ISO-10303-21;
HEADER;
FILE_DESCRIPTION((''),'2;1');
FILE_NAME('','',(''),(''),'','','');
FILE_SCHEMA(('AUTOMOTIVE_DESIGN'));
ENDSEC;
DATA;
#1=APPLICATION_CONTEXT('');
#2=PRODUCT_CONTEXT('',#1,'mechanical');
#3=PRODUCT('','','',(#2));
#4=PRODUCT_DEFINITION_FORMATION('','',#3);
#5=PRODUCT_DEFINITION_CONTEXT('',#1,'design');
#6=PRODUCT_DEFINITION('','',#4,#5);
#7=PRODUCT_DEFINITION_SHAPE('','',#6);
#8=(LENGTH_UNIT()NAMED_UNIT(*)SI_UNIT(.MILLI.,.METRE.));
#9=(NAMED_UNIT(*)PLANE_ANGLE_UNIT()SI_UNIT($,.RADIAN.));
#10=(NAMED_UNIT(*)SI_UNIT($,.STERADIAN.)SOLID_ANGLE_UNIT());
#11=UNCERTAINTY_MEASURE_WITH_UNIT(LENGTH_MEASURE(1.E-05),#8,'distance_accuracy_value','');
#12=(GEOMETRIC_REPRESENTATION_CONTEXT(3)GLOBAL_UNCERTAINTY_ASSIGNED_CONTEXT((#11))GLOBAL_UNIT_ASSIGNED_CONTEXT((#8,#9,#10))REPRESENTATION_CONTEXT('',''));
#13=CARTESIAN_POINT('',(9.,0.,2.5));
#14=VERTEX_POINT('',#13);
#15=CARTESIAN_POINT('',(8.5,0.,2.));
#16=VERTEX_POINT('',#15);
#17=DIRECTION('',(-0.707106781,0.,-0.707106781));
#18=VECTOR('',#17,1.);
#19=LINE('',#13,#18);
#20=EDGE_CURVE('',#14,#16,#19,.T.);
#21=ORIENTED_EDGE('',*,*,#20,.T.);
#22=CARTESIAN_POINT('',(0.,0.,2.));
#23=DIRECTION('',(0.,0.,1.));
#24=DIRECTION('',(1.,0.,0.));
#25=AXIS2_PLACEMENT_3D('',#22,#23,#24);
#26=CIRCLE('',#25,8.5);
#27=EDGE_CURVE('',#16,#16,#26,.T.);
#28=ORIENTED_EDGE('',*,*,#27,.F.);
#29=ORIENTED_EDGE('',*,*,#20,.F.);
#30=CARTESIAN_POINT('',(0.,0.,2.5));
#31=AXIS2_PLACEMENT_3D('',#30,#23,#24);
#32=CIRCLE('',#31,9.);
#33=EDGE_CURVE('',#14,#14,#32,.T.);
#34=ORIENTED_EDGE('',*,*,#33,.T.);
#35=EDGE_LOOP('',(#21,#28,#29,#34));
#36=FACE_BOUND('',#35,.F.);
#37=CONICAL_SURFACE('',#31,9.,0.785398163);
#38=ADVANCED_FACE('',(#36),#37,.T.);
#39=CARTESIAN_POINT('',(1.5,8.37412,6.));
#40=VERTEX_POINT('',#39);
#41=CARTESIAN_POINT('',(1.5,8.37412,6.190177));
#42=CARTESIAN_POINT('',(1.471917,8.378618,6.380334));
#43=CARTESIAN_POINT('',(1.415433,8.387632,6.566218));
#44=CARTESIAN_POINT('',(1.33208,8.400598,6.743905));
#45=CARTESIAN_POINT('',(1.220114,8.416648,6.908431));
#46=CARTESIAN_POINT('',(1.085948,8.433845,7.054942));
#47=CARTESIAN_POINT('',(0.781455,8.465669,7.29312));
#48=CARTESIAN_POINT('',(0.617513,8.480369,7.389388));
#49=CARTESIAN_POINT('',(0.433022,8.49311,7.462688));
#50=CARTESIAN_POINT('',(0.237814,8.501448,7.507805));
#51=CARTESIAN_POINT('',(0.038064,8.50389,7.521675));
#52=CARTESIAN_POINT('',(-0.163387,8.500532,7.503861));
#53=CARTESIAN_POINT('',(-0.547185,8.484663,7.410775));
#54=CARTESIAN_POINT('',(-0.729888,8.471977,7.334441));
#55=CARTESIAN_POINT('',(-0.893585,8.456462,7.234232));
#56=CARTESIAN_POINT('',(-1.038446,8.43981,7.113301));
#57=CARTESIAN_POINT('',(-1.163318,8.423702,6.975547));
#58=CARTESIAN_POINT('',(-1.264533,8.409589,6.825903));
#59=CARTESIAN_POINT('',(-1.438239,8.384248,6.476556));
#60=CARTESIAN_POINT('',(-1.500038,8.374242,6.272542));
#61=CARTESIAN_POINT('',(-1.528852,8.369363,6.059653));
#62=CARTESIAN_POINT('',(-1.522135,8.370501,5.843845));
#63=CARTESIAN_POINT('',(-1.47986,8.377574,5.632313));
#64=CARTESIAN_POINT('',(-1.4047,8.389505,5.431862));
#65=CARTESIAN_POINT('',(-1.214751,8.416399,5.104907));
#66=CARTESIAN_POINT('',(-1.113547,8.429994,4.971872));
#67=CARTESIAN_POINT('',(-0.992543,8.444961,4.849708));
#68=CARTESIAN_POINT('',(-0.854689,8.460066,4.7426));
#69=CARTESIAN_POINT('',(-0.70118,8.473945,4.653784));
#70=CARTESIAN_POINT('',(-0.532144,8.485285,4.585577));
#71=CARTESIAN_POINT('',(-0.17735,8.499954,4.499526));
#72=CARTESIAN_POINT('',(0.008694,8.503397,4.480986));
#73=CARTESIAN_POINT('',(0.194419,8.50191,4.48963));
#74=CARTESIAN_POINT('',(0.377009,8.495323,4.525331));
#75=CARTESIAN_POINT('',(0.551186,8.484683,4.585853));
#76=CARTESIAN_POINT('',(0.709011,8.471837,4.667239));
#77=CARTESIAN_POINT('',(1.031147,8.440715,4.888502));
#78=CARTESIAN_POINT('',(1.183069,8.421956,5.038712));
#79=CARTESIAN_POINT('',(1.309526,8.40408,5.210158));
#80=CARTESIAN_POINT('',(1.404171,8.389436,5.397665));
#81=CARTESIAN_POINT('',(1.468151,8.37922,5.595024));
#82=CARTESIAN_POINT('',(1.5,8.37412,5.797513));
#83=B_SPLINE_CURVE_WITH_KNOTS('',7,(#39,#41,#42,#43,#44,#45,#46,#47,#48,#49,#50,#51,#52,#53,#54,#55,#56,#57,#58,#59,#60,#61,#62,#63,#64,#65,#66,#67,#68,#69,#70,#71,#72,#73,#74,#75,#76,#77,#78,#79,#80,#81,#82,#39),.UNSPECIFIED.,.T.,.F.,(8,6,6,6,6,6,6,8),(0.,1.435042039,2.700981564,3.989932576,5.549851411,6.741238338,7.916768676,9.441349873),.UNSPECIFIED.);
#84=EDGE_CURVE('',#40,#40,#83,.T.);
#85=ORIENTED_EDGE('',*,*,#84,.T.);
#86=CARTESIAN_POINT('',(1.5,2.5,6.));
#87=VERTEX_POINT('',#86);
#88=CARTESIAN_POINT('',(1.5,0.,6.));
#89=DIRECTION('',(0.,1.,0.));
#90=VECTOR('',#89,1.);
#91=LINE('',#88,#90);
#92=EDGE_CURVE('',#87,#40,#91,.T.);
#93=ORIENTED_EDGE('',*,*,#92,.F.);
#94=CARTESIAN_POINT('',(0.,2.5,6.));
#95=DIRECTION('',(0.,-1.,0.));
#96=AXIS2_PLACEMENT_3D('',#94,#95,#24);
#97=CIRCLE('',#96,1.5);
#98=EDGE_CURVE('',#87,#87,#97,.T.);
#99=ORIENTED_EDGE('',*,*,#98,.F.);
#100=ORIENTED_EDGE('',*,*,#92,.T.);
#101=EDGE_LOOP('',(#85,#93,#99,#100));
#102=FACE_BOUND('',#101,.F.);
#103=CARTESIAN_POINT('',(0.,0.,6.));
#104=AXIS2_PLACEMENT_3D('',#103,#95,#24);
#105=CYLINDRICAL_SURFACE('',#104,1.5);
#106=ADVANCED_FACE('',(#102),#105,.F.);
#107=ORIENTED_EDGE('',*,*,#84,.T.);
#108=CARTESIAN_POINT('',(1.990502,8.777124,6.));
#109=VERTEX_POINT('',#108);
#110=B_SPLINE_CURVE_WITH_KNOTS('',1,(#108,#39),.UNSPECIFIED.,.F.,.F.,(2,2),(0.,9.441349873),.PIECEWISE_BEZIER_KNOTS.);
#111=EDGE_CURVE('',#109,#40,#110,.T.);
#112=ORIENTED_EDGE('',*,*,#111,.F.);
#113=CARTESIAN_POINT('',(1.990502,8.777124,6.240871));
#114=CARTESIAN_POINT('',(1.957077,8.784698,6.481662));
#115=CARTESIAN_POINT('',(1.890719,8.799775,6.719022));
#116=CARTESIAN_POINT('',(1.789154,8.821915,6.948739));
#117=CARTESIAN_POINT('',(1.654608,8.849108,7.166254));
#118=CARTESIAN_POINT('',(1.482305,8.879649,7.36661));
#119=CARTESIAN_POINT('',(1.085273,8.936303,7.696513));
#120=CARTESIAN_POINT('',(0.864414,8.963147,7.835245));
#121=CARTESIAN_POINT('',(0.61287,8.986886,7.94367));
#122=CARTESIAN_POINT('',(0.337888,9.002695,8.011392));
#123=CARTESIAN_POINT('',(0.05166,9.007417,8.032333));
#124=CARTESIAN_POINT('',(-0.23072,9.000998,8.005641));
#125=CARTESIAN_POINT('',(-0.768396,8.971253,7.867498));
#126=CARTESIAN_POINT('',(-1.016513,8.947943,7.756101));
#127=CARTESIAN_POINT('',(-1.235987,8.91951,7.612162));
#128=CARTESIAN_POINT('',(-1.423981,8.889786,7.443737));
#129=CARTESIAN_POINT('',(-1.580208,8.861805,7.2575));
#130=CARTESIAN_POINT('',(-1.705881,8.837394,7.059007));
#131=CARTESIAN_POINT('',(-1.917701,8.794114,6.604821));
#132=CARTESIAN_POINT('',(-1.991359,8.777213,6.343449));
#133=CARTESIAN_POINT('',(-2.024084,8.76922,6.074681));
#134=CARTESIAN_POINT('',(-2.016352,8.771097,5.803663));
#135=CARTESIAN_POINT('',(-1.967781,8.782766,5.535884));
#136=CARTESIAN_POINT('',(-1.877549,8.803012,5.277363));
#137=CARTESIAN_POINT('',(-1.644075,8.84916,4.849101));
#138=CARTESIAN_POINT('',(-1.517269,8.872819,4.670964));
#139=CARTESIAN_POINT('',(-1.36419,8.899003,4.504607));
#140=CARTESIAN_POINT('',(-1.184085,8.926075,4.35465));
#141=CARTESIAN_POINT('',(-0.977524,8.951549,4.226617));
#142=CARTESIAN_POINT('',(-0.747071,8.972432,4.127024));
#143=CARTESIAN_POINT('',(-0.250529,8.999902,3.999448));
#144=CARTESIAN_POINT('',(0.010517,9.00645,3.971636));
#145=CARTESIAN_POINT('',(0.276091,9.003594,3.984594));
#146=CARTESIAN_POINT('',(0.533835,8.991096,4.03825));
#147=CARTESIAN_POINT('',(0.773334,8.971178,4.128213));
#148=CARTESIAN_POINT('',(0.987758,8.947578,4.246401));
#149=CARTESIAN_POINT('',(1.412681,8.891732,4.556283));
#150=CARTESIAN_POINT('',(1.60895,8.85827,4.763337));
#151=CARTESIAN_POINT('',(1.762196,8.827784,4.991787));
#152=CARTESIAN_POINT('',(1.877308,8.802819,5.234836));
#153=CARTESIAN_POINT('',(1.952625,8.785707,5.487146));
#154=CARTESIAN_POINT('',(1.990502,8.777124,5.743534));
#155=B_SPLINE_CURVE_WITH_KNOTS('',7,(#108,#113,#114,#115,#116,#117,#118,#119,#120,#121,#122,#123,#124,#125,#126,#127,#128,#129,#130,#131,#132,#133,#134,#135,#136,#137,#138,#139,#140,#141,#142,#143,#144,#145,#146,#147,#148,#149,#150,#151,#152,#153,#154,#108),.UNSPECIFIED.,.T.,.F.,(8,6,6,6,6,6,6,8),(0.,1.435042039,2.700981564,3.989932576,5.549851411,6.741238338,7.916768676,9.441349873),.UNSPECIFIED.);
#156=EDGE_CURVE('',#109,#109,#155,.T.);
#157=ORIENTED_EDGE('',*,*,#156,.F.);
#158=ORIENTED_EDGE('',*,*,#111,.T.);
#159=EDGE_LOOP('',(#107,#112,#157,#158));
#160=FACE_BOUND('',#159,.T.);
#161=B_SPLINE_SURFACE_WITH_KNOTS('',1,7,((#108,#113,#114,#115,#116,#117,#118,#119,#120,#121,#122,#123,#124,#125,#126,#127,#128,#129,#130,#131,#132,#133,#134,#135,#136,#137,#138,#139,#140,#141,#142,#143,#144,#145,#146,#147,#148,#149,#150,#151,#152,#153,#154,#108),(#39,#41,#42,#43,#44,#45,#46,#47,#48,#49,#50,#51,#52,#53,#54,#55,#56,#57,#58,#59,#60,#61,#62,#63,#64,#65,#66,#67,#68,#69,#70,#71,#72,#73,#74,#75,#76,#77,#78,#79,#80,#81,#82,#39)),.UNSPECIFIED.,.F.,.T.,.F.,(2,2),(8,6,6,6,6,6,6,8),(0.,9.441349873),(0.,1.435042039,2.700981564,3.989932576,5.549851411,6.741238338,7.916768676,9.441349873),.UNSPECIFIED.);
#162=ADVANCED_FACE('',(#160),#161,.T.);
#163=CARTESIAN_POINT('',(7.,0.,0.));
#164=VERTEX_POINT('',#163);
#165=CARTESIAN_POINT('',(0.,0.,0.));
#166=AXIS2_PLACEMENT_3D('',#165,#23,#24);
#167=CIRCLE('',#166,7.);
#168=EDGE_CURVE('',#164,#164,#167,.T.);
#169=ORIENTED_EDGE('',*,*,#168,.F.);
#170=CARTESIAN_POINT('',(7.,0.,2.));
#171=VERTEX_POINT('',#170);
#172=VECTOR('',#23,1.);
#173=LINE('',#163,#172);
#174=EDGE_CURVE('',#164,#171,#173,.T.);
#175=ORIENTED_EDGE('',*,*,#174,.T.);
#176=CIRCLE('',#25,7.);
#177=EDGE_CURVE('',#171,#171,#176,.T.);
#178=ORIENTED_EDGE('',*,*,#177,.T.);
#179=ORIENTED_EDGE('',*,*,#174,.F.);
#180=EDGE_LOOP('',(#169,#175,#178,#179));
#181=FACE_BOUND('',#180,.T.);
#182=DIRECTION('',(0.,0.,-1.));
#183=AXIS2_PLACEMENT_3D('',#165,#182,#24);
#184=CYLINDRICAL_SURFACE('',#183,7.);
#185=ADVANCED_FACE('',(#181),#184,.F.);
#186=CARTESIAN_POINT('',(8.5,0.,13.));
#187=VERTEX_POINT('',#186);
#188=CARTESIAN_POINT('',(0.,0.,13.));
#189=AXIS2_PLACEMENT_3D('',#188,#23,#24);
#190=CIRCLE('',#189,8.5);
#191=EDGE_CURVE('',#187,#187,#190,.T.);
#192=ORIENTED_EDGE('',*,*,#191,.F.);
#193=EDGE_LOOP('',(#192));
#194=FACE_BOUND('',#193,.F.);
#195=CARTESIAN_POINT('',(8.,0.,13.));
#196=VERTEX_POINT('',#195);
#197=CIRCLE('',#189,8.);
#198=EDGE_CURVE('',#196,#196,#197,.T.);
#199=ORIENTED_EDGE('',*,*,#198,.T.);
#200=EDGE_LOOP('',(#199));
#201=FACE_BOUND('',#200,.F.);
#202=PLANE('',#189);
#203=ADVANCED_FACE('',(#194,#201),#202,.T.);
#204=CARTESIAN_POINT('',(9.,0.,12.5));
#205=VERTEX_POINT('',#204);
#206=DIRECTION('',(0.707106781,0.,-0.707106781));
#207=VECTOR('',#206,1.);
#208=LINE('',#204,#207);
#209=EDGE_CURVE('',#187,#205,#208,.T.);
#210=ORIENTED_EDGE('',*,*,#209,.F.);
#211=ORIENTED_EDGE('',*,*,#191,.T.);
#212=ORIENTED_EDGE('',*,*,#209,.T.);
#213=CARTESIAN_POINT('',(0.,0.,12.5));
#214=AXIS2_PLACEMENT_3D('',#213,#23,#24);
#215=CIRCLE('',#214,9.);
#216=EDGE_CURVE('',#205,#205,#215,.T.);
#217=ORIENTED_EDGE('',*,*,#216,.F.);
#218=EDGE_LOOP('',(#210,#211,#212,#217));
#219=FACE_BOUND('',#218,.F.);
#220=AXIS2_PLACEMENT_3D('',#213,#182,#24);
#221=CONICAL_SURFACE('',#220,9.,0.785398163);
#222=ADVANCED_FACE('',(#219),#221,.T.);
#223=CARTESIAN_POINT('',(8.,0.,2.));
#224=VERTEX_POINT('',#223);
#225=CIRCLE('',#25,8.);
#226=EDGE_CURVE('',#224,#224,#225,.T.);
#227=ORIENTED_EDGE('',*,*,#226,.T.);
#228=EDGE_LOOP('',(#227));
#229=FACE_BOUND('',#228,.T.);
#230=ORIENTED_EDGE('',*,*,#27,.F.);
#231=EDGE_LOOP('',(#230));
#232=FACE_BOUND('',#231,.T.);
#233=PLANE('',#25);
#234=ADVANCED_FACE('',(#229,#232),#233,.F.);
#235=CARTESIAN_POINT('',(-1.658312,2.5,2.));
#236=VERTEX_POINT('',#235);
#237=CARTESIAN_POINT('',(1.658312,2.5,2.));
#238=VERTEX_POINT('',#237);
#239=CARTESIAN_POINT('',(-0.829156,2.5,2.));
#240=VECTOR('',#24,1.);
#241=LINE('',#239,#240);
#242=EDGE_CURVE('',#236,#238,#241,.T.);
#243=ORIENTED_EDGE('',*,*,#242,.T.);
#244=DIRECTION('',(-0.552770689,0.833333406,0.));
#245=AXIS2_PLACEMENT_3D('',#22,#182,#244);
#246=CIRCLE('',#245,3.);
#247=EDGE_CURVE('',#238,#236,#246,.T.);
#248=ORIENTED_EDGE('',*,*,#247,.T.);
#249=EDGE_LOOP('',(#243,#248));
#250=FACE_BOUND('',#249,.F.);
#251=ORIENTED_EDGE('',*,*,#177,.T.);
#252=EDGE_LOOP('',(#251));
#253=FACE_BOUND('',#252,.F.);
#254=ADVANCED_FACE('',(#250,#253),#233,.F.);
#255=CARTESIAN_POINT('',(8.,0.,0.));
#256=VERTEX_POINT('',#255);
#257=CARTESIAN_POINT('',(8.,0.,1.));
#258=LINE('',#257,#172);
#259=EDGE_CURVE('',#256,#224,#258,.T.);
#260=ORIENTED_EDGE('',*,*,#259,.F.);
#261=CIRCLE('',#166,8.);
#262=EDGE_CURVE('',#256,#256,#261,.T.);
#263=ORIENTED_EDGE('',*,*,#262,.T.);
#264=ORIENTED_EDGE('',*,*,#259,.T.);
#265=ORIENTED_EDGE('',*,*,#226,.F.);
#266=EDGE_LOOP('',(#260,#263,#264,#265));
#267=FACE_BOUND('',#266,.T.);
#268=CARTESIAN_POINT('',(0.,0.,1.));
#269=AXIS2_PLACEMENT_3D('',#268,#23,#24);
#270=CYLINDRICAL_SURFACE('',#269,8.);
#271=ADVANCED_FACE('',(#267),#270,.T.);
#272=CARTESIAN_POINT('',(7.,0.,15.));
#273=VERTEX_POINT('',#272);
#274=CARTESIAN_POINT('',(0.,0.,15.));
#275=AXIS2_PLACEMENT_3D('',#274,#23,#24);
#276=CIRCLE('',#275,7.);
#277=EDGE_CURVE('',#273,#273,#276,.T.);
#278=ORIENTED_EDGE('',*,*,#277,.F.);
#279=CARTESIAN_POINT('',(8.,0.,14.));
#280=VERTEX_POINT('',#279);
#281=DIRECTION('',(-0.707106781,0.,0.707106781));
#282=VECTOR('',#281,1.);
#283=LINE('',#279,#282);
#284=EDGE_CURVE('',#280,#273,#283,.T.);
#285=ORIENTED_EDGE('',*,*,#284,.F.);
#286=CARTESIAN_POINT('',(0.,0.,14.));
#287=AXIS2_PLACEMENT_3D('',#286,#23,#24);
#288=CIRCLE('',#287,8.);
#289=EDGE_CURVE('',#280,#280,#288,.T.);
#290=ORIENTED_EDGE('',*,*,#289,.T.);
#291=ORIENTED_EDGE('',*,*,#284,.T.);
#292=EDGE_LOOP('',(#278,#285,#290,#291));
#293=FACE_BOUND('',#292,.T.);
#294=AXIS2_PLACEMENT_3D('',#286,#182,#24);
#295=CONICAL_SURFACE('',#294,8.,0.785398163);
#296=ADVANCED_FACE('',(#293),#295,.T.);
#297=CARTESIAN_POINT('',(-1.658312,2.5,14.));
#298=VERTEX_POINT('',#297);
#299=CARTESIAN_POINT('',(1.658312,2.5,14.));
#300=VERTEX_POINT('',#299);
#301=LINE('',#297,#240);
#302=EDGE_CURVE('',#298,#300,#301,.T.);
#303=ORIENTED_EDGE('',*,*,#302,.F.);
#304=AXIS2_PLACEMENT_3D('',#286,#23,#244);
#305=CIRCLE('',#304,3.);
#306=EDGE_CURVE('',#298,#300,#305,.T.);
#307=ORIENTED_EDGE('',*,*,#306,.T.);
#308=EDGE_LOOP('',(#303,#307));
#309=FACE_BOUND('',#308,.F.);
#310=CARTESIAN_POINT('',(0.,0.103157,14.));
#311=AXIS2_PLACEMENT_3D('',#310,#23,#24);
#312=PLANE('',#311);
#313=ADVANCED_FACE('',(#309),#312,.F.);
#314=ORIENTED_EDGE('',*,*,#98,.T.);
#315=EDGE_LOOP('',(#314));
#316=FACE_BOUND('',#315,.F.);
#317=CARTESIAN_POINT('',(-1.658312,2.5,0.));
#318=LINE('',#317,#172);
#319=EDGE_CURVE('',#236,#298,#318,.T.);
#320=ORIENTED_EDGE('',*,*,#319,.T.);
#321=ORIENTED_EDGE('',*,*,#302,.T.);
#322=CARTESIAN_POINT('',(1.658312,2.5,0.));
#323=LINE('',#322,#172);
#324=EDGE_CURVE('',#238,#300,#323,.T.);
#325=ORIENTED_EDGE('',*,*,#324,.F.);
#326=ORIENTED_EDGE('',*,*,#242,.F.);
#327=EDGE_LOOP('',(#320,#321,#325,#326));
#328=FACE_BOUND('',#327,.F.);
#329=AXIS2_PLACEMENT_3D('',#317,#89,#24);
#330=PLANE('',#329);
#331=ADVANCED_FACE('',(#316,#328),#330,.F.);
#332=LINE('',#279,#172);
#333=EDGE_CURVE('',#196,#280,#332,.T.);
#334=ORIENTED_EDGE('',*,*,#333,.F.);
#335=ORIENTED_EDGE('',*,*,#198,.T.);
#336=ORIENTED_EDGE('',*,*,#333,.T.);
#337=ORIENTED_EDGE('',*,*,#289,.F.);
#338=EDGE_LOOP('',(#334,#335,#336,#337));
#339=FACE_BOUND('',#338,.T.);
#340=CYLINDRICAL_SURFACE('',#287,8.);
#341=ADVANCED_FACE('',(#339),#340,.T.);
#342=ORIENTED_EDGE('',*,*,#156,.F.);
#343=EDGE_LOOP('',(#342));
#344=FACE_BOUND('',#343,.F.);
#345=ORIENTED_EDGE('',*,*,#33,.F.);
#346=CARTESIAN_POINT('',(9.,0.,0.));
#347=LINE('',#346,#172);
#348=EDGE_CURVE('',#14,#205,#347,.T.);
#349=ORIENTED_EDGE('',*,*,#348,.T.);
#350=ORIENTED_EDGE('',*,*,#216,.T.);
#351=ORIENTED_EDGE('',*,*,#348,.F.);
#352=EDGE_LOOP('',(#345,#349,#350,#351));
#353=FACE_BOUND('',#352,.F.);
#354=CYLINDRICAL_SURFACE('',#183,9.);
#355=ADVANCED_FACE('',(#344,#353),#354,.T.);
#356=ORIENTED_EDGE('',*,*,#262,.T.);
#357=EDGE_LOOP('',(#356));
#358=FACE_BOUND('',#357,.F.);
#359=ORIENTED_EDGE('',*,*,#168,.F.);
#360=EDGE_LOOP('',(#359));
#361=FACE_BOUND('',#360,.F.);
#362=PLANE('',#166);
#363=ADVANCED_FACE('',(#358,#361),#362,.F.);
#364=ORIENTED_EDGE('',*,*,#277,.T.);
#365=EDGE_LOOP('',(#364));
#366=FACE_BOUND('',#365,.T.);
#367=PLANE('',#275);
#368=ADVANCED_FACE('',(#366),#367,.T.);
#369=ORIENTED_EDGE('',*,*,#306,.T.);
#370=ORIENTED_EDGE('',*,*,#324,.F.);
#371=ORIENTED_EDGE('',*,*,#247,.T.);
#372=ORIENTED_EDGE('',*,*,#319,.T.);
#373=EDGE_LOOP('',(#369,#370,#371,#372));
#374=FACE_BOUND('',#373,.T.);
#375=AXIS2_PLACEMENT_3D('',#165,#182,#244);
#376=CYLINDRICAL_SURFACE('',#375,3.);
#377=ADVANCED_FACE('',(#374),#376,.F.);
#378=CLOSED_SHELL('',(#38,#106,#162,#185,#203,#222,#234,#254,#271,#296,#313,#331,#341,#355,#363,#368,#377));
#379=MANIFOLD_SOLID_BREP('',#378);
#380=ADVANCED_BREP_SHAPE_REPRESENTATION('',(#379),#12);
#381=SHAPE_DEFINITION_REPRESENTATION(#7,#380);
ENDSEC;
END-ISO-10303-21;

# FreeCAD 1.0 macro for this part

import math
import FreeCAD as App
import Part
import Sketcher

V = App.Vector
Q = App.Units.Quantity


def edges_at(feature, points):
    """Names of the edges that pass closest to the given points."""
    edges = feature.Shape.Edges
    near = lambda p: min(range(len(edges)), key=lambda i: edges[i].distToShape(Part.Vertex(*p))[0])
    return sorted({f"Edge{near(p) + 1}" for p in points})


def add_polygon(sketch, points):
    """Adds a closed chain of lines whose ends are joined by coincident constraints."""
    first, n = sketch.GeometryCount, len(points)
    for a, b in zip(points, points[1:] + points[:1]):
        sketch.addGeometry(Part.LineSegment(App.Vector(*a, 0), App.Vector(*b, 0)), False)
    for i in range(n):
        sketch.addConstraint(Sketcher.Constraint("Coincident", first + i, 2, first + (i + 1) % n, 1))

doc = App.newDocument("Part")
params = doc.addObject("Spreadsheet::Sheet", "Params")
for row, (alias, value) in enumerate([
    ("sketch1_diameter", "18 mm"),
    ("pad1_length", "15 mm"),
    ("sketch2_radius", "3 mm"),
    ("pocket1_length", "14 mm"),
    ("sketch3_diameter", "14 mm"),
    ("pocket2_length", "2 mm"),
    ("sketch4_diameter", "3 mm"),
    ("sketch5_width", "1 mm"),
    ("sketch5_height", "2 mm"),
    ("groove_angle", "360 deg"),
    ("chamfer_size", "1 mm"),
    ("chamfer2_size", "0.5 mm"),
], start=1):
    params.set(f"A{row}", alias)
    params.set(f"B{row}", "=" + value)
    params.setAlias(f"B{row}", alias)

body = doc.addObject("PartDesign::Body", "Body")

# Sketch on XY plane
sketch1 = doc.addObject("Sketcher::SketchObject", "Sketch")
body.addObject(sketch1)
sketch1.AttachmentSupport = (doc.XY_Plane, [""])
sketch1.MapMode = "FlatFace"
sketch1.addGeometry(Part.Circle(V(0, 0, 0), V(0, 0, 1), 9), False)
sketch1.addConstraint([
    Sketcher.Constraint("Coincident", 0, 3, -1, 1),
    Sketcher.Constraint("Diameter", 0, Q("18 mm")),
])
sketch1.setExpression("Constraints[1]", "Params.sketch1_diameter")
pad1 = doc.addObject("PartDesign::Pad", "Pad")
body.addObject(pad1)
pad1.Profile = sketch1
pad1.setExpression("Length", "Params.pad1_length")

# Sketch on XY plane
sketch2 = doc.addObject("Sketcher::SketchObject", "Sketch001")
body.addObject(sketch2)
sketch2.AttachmentSupport = (doc.XY_Plane, [""])
sketch2.MapMode = "FlatFace"
sketch2.addGeometry([
    Part.ArcOfCircle(Part.Circle(V(0, 0, 0), V(0, 0, 1), 3), math.radians(124), math.radians(416)),
    Part.LineSegment(V(1.7, 2.5, 0), V(-1.7, 2.5, 0)),
], False)
sketch2.addConstraint([
    Sketcher.Constraint("Coincident", 0, 1, 1, 2),
    Sketcher.Constraint("Coincident", 1, 1, 0, 2),
    Sketcher.Constraint("Horizontal", 1),
    Sketcher.Constraint("Coincident", 0, 3, -1, 1),
    Sketcher.Constraint("Radius", 0, Q("3 mm")),
    Sketcher.Constraint("DistanceY", -1, 1, 0, 1, Q("2.5 mm")),
])
sketch2.setExpression("Constraints[4]", "Params.sketch2_radius")
pocket1 = doc.addObject("PartDesign::Pocket", "Pocket")
body.addObject(pocket1)
pocket1.Profile = sketch2
pocket1.setExpression("Length", "Params.pocket1_length")
pocket1.Reversed = True

# Sketch on XY plane
sketch3 = doc.addObject("Sketcher::SketchObject", "Sketch002")
body.addObject(sketch3)
sketch3.AttachmentSupport = (doc.XY_Plane, [""])
sketch3.MapMode = "FlatFace"
sketch3.addGeometry(Part.Circle(V(0, 0, 0), V(0, 0, 1), 7), False)
sketch3.addConstraint([
    Sketcher.Constraint("Coincident", 0, 3, -1, 1),
    Sketcher.Constraint("Diameter", 0, Q("14 mm")),
])
sketch3.setExpression("Constraints[1]", "Params.sketch3_diameter")
pocket2 = doc.addObject("PartDesign::Pocket", "Pocket001")
body.addObject(pocket2)
pocket2.Profile = sketch3
pocket2.setExpression("Length", "Params.pocket2_length")
pocket2.Reversed = True

# Sketch on XZ plane
sketch4 = doc.addObject("Sketcher::SketchObject", "Sketch003")
body.addObject(sketch4)
sketch4.AttachmentSupport = (doc.XZ_Plane, [""])
sketch4.MapMode = "FlatFace"
sketch4.addGeometry(Part.Circle(V(0, 6, 0), V(0, 0, 1), 1.5), False)
sketch4.addConstraint([
    Sketcher.Constraint("PointOnObject", 0, 3, -2),
    Sketcher.Constraint("Diameter", 0, Q("3 mm")),
    Sketcher.Constraint("DistanceY", -1, 1, 0, 3, Q("6 mm")),
])
sketch4.setExpression("Constraints[1]", "Params.sketch4_diameter")
pocket3 = doc.addObject("PartDesign::Pocket", "Pocket002")
body.addObject(pocket3)
pocket3.Profile = sketch4
pocket3.Type = "ThroughAll"

# Sketch on XZ plane
sketch5 = doc.addObject("Sketcher::SketchObject", "Sketch004")
body.addObject(sketch5)
sketch5.AttachmentSupport = (doc.XZ_Plane, [""])
sketch5.MapMode = "FlatFace"
add_polygon(sketch5, [(8, 15), (8, 13), (9, 13), (9, 15)])  # lines 0-3
add_polygon(sketch5, [(8, 2), (8, 0), (9, 0), (9, 2)])  # lines 4-7
sketch5.addConstraint([
    Sketcher.Constraint("Vertical", 0),
    Sketcher.Constraint("Horizontal", 1),
    Sketcher.Constraint("Vertical", 2),
    Sketcher.Constraint("Horizontal", 3),
    Sketcher.Constraint("Vertical", 4),
    Sketcher.Constraint("Horizontal", 5),
    Sketcher.Constraint("Vertical", 6),
    Sketcher.Constraint("Horizontal", 7),
    Sketcher.Constraint("PointOnObject", 4, 2, -1),
    Sketcher.Constraint("Vertical", 3, 2, 4, 2),
    Sketcher.Constraint("Vertical", 2, 2, 5, 2),
    Sketcher.Constraint("Equal", 2, 4),
    Sketcher.Constraint("DistanceX", 1, 1, 1, 2, Q("1 mm")),
    Sketcher.Constraint("DistanceY", 0, 2, 0, 1, Q("2 mm")),
    Sketcher.Constraint("DistanceX", -1, 1, 0, 2, Q("8 mm")),
    Sketcher.Constraint("DistanceY", -1, 1, 0, 2, Q("13 mm")),
])
sketch5.setExpression("Constraints[20]", "Params.sketch5_width")
sketch5.setExpression("Constraints[21]", "Params.sketch5_height")
groove = doc.addObject("PartDesign::Groove", "Groove")
body.addObject(groove)
groove.Profile = sketch5
groove.ReferenceAxis = (sketch5, ["V_Axis"])
groove.setExpression("Angle", "Params.groove_angle")
doc.recompute()

chamfer = doc.addObject("PartDesign::Chamfer", "Chamfer")
body.addObject(chamfer)
chamfer.Base = (groove, edges_at(groove, [(-8, 0, 15)]))
chamfer.setExpression("Size", "Params.chamfer_size")
doc.recompute()

chamfer2 = doc.addObject("PartDesign::Chamfer", "Chamfer001")
body.addObject(chamfer2)
chamfer2.Base = (chamfer, edges_at(chamfer, [
    (-9, 0, 2),
    (9, 0, 7.5),
    (-9, 0, 13),
    (-1.5, 8.874, 6),
]))
chamfer2.setExpression("Size", "Params.chamfer2_size")

doc.recompute()
